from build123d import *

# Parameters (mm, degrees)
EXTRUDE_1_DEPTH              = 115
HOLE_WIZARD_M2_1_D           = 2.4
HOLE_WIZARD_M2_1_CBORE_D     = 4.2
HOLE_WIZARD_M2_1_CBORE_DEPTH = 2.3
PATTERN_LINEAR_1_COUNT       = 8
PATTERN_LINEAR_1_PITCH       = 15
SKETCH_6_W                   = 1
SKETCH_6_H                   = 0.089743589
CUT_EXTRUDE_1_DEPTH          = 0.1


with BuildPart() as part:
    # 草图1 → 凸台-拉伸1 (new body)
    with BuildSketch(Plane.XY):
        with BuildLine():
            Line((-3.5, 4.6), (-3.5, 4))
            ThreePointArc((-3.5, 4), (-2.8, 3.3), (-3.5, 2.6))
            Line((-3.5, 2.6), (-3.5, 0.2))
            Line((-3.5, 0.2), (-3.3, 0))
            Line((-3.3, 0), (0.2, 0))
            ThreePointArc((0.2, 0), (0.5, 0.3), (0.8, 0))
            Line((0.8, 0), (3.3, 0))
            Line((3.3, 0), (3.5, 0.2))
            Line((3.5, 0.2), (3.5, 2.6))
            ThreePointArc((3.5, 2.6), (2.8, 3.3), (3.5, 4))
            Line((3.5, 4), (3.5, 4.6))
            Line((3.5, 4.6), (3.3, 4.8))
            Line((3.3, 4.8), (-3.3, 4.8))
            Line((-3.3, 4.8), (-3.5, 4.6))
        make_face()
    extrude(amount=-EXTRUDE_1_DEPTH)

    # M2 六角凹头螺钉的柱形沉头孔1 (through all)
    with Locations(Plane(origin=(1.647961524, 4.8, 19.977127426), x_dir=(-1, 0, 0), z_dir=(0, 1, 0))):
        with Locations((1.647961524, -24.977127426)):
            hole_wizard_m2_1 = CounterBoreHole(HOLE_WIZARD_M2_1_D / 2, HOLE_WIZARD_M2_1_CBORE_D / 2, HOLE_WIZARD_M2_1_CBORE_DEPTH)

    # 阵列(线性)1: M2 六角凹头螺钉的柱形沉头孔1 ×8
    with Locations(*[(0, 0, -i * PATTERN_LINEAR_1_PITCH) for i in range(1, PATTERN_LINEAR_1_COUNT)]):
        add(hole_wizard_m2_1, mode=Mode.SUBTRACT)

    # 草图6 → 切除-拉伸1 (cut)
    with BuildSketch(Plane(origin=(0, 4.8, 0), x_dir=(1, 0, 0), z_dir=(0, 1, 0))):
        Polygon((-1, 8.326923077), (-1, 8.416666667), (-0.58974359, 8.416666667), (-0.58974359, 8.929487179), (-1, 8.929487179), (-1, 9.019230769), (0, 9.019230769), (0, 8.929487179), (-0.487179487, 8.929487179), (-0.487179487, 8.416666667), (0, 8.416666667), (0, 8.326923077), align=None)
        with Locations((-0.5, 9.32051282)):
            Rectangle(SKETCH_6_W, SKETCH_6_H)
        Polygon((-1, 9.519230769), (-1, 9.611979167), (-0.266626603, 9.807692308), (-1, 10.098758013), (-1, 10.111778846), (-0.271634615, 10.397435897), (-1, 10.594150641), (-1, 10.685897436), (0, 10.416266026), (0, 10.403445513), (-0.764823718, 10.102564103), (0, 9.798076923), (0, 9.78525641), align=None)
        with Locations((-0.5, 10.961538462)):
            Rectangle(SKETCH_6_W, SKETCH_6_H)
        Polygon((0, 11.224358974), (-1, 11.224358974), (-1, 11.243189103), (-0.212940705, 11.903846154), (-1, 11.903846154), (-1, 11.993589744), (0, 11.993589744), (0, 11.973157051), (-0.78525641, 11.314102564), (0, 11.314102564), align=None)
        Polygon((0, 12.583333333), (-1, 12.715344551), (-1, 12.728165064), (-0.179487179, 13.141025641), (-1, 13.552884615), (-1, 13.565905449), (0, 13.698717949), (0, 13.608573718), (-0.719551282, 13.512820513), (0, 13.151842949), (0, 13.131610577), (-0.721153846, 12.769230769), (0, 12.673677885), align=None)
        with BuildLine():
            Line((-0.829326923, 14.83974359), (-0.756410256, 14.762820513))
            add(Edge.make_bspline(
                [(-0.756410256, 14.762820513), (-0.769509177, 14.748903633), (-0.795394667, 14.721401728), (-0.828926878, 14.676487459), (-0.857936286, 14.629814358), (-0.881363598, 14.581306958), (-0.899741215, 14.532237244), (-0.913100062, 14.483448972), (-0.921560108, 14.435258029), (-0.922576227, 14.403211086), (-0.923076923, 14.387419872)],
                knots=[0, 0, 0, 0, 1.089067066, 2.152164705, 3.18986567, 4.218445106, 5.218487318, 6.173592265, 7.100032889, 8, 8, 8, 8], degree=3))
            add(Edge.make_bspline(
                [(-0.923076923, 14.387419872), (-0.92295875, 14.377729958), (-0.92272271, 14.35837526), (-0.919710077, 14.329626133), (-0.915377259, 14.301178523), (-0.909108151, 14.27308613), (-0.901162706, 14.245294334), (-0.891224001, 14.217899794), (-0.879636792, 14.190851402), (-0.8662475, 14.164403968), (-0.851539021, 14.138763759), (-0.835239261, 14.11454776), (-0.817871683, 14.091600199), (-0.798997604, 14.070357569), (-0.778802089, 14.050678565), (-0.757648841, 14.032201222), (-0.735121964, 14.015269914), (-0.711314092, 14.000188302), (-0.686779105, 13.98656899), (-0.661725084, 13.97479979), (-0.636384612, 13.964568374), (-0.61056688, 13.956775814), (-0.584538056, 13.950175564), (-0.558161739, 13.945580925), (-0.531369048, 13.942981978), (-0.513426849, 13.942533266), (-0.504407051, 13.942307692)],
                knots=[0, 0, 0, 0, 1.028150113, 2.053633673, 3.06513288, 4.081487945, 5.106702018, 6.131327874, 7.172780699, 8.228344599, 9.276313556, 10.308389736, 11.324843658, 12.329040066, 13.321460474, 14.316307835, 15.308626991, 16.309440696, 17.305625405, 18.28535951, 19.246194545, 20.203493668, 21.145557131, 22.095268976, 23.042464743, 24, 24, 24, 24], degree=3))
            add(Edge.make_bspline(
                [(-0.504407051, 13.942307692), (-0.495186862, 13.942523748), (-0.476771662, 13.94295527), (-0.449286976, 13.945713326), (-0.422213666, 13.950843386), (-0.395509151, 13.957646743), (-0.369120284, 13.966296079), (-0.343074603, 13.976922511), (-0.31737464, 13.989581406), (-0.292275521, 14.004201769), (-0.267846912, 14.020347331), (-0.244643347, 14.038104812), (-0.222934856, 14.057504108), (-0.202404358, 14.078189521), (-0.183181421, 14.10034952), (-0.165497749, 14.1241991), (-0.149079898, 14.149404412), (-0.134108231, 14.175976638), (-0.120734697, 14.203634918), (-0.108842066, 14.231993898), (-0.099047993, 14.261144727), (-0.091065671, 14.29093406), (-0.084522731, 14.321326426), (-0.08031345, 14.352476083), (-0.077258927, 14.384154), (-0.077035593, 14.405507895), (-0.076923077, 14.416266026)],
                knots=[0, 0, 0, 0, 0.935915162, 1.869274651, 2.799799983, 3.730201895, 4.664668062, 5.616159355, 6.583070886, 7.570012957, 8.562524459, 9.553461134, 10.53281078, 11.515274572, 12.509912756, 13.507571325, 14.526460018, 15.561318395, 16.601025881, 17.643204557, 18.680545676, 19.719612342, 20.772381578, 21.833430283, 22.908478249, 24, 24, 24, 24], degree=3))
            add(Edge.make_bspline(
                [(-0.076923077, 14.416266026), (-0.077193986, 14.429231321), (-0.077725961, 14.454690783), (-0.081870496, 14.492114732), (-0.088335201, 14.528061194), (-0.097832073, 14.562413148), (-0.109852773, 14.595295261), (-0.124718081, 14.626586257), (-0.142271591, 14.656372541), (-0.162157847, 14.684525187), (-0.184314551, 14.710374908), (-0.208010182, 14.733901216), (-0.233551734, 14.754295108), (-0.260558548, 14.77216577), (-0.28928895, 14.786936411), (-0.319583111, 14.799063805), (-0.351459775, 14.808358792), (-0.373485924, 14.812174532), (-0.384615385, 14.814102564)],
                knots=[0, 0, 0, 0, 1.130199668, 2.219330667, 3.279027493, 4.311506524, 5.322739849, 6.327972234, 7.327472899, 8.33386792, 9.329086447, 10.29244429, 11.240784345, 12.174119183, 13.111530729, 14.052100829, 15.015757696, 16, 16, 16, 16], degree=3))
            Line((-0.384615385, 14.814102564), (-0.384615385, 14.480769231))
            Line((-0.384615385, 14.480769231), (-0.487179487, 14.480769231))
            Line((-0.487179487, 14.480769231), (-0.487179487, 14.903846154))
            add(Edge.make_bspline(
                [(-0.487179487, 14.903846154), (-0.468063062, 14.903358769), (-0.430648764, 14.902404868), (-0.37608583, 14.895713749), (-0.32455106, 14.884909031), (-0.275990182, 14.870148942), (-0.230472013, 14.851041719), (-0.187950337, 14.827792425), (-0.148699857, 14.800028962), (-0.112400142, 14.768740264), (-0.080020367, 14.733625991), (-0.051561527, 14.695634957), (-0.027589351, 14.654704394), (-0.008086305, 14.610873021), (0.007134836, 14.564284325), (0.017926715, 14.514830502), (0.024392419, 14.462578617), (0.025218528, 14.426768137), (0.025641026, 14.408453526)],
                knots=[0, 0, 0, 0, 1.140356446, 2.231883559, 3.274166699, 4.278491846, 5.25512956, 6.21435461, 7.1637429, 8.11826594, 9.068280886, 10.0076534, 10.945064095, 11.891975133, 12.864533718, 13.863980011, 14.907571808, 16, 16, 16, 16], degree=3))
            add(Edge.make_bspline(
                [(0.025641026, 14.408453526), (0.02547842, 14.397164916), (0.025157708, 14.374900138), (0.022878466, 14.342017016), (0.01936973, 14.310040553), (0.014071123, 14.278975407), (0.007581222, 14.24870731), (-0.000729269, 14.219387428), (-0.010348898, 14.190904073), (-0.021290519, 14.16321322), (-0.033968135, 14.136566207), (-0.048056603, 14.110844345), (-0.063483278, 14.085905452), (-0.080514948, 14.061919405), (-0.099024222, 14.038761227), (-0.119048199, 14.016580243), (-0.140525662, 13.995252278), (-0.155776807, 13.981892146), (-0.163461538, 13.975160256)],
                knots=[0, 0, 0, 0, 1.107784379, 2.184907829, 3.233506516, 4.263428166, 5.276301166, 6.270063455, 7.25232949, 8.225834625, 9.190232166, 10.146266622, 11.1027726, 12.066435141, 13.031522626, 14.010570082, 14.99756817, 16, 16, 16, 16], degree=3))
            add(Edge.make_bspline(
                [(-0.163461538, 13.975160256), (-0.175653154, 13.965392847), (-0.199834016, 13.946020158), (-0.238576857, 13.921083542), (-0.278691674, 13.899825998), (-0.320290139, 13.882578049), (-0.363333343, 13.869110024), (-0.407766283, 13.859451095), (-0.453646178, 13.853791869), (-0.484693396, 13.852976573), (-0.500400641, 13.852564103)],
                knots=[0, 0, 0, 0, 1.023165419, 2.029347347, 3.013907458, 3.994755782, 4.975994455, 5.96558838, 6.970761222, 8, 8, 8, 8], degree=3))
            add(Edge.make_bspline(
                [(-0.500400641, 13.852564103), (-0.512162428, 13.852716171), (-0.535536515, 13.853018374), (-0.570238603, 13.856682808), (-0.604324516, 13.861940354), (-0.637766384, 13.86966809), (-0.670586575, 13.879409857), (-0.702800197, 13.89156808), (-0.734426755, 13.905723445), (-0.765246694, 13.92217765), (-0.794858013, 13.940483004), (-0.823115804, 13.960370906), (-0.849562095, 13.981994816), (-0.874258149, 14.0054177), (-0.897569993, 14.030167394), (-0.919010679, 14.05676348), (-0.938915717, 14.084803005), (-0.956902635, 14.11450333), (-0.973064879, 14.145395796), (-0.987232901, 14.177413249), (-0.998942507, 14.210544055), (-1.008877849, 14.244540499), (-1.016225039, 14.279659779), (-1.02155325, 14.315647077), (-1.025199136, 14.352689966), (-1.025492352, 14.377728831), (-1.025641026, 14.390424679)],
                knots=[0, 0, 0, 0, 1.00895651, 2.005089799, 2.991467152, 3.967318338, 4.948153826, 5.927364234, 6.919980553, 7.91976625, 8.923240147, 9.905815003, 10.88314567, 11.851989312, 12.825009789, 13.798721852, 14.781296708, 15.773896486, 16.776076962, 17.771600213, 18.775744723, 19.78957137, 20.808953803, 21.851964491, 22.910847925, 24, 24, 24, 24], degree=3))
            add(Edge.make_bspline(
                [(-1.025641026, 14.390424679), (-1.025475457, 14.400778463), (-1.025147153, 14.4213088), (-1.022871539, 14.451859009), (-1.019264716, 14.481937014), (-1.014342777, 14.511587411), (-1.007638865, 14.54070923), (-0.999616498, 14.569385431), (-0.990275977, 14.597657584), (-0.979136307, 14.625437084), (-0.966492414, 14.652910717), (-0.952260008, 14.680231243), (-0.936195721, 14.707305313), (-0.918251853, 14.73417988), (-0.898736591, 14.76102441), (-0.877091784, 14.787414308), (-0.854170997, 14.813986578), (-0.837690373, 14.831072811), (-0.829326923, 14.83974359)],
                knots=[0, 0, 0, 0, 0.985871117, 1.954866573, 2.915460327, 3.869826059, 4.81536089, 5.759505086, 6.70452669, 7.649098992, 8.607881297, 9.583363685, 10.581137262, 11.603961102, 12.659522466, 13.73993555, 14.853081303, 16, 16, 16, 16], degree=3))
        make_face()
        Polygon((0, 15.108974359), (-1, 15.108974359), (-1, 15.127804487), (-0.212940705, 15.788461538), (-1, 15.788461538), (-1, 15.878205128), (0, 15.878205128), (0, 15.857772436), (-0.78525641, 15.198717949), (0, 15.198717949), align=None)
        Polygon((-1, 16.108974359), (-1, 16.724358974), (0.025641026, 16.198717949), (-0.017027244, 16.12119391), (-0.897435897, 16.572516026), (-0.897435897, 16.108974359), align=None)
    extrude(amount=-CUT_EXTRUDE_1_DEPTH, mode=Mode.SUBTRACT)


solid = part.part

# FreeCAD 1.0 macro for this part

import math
import FreeCAD as App
import Part
import Sketcher
from FreeCAD import Vector
Q = App.Units.Quantity


def add_polygon(sketch, points):
    """Adds a closed chain of lines whose ends are joined by coincident constraints."""
    first, n = sketch.GeometryCount, len(points)
    for a, b in zip(points, points[1:] + points[:1]):
        sketch.addGeometry(Part.LineSegment(App.Vector(*a, 0), App.Vector(*b, 0)), False)
    for i in range(n):
        sketch.addConstraint(Sketcher.Constraint("Coincident", first + i, 2, first + (i + 1) % n, 1))

doc = App.newDocument("Part")
body = doc.addObject("PartDesign::Body", "Body")

# Sketch on XY plane
sketch1 = body.newObject("Sketcher::SketchObject", "Sketch")
sketch1.AttachmentSupport = (doc.getObject("XY_Plane"), [""])
sketch1.MapMode = "FlatFace"
sketch1.addGeometry([
    Part.LineSegment(Vector(-3.5, 4.6, 0), Vector(-3.5, 4, 0)),  # 0
    Part.ArcOfCircle(Part.Circle(Vector(-3.5, 3.3, 0), Vector(0, 0, 1), 0.7), math.radians(-90), math.radians(90)),  # 1
    Part.LineSegment(Vector(-3.5, 2.6, 0), Vector(-3.5, 0.2, 0)),  # 2
    Part.LineSegment(Vector(-3.5, 0.2, 0), Vector(-3.3, 0, 0)),  # 3
    Part.LineSegment(Vector(-3.3, 0, 0), Vector(0.2, 0, 0)),  # 4
    Part.ArcOfCircle(Part.Circle(Vector(0.5, 0, 0), Vector(0, 0, 1), 0.3), math.radians(0), math.radians(180)),  # 5
    Part.LineSegment(Vector(0.8, 0, 0), Vector(3.3, 0, 0)),  # 6
    Part.LineSegment(Vector(3.3, 0, 0), Vector(3.5, 0.2, 0)),  # 7
    Part.LineSegment(Vector(3.5, 0.2, 0), Vector(3.5, 2.6, 0)),  # 8
    Part.ArcOfCircle(Part.Circle(Vector(3.5, 3.3, 0), Vector(0, 0, 1), 0.7), math.radians(90), math.radians(270)),  # 9
    Part.LineSegment(Vector(3.5, 4, 0), Vector(3.5, 4.6, 0)),  # 10
    Part.LineSegment(Vector(3.5, 4.6, 0), Vector(3.3, 4.8, 0)),  # 11
    Part.LineSegment(Vector(3.3, 4.8, 0), Vector(-3.3, 4.8, 0)),  # 12
    Part.LineSegment(Vector(-3.3, 4.8, 0), Vector(-3.5, 4.6, 0)),  # 13
], False)
sketch1.addConstraint([
    Sketcher.Constraint("Coincident", 0, 2, 1, 2),
    Sketcher.Constraint("Coincident", 1, 1, 2, 1),
    Sketcher.Constraint("Coincident", 2, 2, 3, 1),
    Sketcher.Constraint("Coincident", 3, 2, 4, 1),
    Sketcher.Constraint("Coincident", 4, 2, 5, 2),
    Sketcher.Constraint("Coincident", 5, 1, 6, 1),
    Sketcher.Constraint("Coincident", 6, 2, 7, 1),
    Sketcher.Constraint("Coincident", 7, 2, 8, 1),
    Sketcher.Constraint("Coincident", 8, 2, 9, 2),
    Sketcher.Constraint("Coincident", 9, 1, 10, 1),
    Sketcher.Constraint("Coincident", 10, 2, 11, 1),
    Sketcher.Constraint("Coincident", 11, 2, 12, 1),
    Sketcher.Constraint("Coincident", 12, 2, 13, 1),
    Sketcher.Constraint("Coincident", 13, 2, 0, 1),
    Sketcher.Constraint("Vertical", 0),
    Sketcher.Constraint("Vertical", 2),
    Sketcher.Constraint("Horizontal", 4),
    Sketcher.Constraint("Horizontal", 6),
    Sketcher.Constraint("Vertical", 8),
    Sketcher.Constraint("Vertical", 10),
    Sketcher.Constraint("Horizontal", 12),
    Sketcher.Constraint("Equal", 1, 9),
    Sketcher.Constraint("Symmetric", 3, 2, 6, 2, -1, 1),
    Sketcher.Constraint("Symmetric", 1, 3, 9, 3, -2),
    Sketcher.Constraint("Symmetric", 2, 2, 7, 2, -2),
    Sketcher.Constraint("Symmetric", 10, 2, 13, 2, -2),
    Sketcher.Constraint("PointOnObject", 5, 3, -1),
    Sketcher.Constraint("PointOnObject", 3, 2, -1),
    Sketcher.Constraint("Perpendicular", 3, 7),
    Sketcher.Constraint("Perpendicular", 7, 11),
    Sketcher.Constraint("Perpendicular", 11, 13),
    Sketcher.Constraint("Vertical", 1, 3, 0, 2),
    Sketcher.Constraint("Vertical", 0, 2, 1, 1),
    Sketcher.Constraint("Vertical", 6, 2, 11, 2),
    Sketcher.Constraint("Radius", 1, Q("0.7 mm")),
    Sketcher.Constraint("Radius", 5, Q("0.3 mm")),
    Sketcher.Constraint("DistanceX", 4, 1, 4, 2, Q("3.5 mm")),
    Sketcher.Constraint("DistanceX", 6, 1, 6, 2, Q("2.5 mm")),
    Sketcher.Constraint("DistanceY", 0, 2, 0, 1, Q("0.6 mm")),
    Sketcher.Constraint("DistanceY", 2, 2, 2, 1, Q("2.4 mm")),
    Sketcher.Constraint("DistanceY", -1, 1, 0, 2, Q("4 mm")),
])
pad1 = body.newObject("PartDesign::Pad", "Pad")
pad1.Profile = sketch1
pad1.Length = 115
pad1.Reversed = True

# Sketch on XZ plane
sketch2 = body.newObject("Sketcher::SketchObject", "Sketch001")
sketch2.AttachmentSupport = (doc.getObject("XZ_Plane"), [""])
sketch2.MapMode = "FlatFace"
sketch2.AttachmentOffset = App.Placement(Vector(0, 0, -4.8), App.Rotation())
sketch2.addGeometry(Part.Circle(Vector(0, -5, 0), Vector(0, 0, 1), 1.2), False)
sketch2.addConstraint([
    Sketcher.Constraint("PointOnObject", 0, 3, -2),
    Sketcher.Constraint("Diameter", 0, Q("2.4 mm")),
    Sketcher.Constraint("DistanceY", 0, 3, -1, 1, Q("5 mm")),
])
doc.recompute()
hole = body.newObject("PartDesign::Hole", "Hole")
hole.Profile = sketch2
hole.ThreadType = "None"
hole.Diameter = 2.4
hole.DepthType = "ThroughAll"
hole.HoleCutType = "Counterbore"
hole.HoleCutDiameter = 4.2
hole.HoleCutDepth = 2.3
hole.Reversed = True
doc.recompute()

linearpattern = body.newObject("PartDesign::LinearPattern", "LinearPattern")
linearpattern.Originals = [hole]
linearpattern.Direction = (doc.getObject("Z_Axis"), [""])
linearpattern.Mode = "offset"
linearpattern.Offset = 15
linearpattern.Occurrences = 8
linearpattern.Reversed = True
body.Tip = linearpattern

# Sketch on XZ plane
sketch3 = body.newObject("Sketcher::SketchObject", "Sketch002")
sketch3.AttachmentSupport = (doc.getObject("XZ_Plane"), [""])
sketch3.MapMode = "FlatFace"
sketch3.AttachmentOffset = App.Placement(Vector(0, 0, -4.8), App.Rotation())
add_polygon(sketch3, [(-1, -8.416667), (-1, -8.326923), (0, -8.326923), (0, -8.416667), (-0.487179, -8.416667), (-0.487179, -8.929487), (0, -8.929487), (0, -9.019231), (-1, -9.019231), (-1, -8.929487), (-0.589744, -8.929487), (-0.589744, -8.416667)])  # lines 0-11
add_polygon(sketch3, [(-1, -9.365385), (-1, -9.275641), (0, -9.275641), (0, -9.365385)])  # lines 12-15
add_polygon(sketch3, [(-1, -9.611979), (-1, -9.519231), (0, -9.785256), (0, -9.798077), (-0.764824, -10.102564), (0, -10.403446), (0, -10.416266), (-1, -10.685897), (-1, -10.594151), (-0.271635, -10.397436), (-1, -10.111779), (-1, -10.098758), (-0.266627, -9.807692)])  # lines 16-28
add_polygon(sketch3, [(-1, -11.00641), (-1, -10.916667), (0, -10.916667), (0, -11.00641)])  # lines 29-32
add_polygon(sketch3, [(-1, -11.224359), (0, -11.224359), (0, -11.314103), (-0.785256, -11.314103), (0, -11.973157), (0, -11.99359), (-1, -11.99359), (-1, -11.903846), (-0.212941, -11.903846), (-1, -11.243189)])  # lines 33-42
add_polygon(sketch3, [(-1, -12.715345), (0, -12.583333), (0, -12.673678), (-0.721154, -12.769231), (0, -13.131611), (0, -13.151843), (-0.719551, -13.512821), (0, -13.608574), (0, -13.698718), (-1, -13.565905), (-1, -13.552885), (-0.179487, -13.141026), (-1, -12.728165)])  # lines 43-55
sketch3.addGeometry(Part.LineSegment(Vector(-0.75641, -14.762821, 0), Vector(-0.829327, -14.839744, 0)), False)  # 56
sketch3.addGeometry(Part.BSplineCurve([Vector(-1.025641, -14.390425, 0), Vector(-1.025475, -14.400778, 0), Vector(-1.025147, -14.421309, 0), Vector(-1.022872, -14.451859, 0), Vector(-1.019265, -14.481937, 0), Vector(-1.014343, -14.511587, 0), Vector(-1.007639, -14.540709, 0), Vector(-0.999616, -14.569385, 0), Vector(-0.990276, -14.597658, 0), Vector(-0.979136, -14.625437, 0), Vector(-0.966492, -14.652911, 0), Vector(-0.95226, -14.680231, 0), Vector(-0.936196, -14.707305, 0), Vector(-0.918252, -14.73418, 0), Vector(-0.898737, -14.761024, 0), Vector(-0.877092, -14.787414, 0), Vector(-0.854171, -14.813987, 0), Vector(-0.83769, -14.831073, 0), Vector(-0.829327, -14.839744, 0)], [4, 1, 1, 1, 1, 1, 1, 1, 1, 1, 1, 1, 1, 1, 1, 1, 4], [0, 0.985871117, 1.954866573, 2.915460327, 3.869826059, 4.81536089, 5.759505086, 6.70452669, 7.649098992, 8.607881297, 9.583363685, 10.581137262, 11.603961102, 12.659522466, 13.73993555, 14.853081303, 16], False, 3, [1, 1, 1, 1, 1, 1, 1, 1, 1, 1, 1, 1, 1, 1, 1, 1, 1, 1, 1], False), False)  # 57
sketch3.addGeometry(Part.BSplineCurve([Vector(-0.500401, -13.852564, 0), Vector(-0.512162, -13.852716, 0), Vector(-0.535537, -13.853018, 0), Vector(-0.570239, -13.856683, 0), Vector(-0.604325, -13.86194, 0), Vector(-0.637766, -13.869668, 0), Vector(-0.670587, -13.87941, 0), Vector(-0.7028, -13.891568, 0), Vector(-0.734427, -13.905723, 0), Vector(-0.765247, -13.922178, 0), Vector(-0.794858, -13.940483, 0), Vector(-0.823116, -13.960371, 0), Vector(-0.849562, -13.981995, 0), Vector(-0.874258, -14.005418, 0), Vector(-0.89757, -14.030167, 0), Vector(-0.919011, -14.056763, 0), Vector(-0.938916, -14.084803, 0), Vector(-0.956903, -14.114503, 0), Vector(-0.973065, -14.145396, 0), Vector(-0.987233, -14.177413, 0), Vector(-0.998943, -14.210544, 0), Vector(-1.008878, -14.24454, 0), Vector(-1.016225, -14.27966, 0), Vector(-1.021553, -14.315647, 0), Vector(-1.025199, -14.35269, 0), Vector(-1.025492, -14.377729, 0), Vector(-1.025641, -14.390425, 0)], [4, 1, 1, 1, 1, 1, 1, 1, 1, 1, 1, 1, 1, 1, 1, 1, 1, 1, 1, 1, 1, 1, 1, 1, 4], [0, 1.00895651, 2.005089799, 2.991467152, 3.967318338, 4.948153826, 5.927364234, 6.919980553, 7.91976625, 8.923240147, 9.905815003, 10.88314567, 11.851989312, 12.825009789, 13.798721852, 14.781296708, 15.773896486, 16.776076962, 17.771600213, 18.775744723, 19.78957137, 20.808953803, 21.851964491, 22.910847925, 24], False, 3, [1, 1, 1, 1, 1, 1, 1, 1, 1, 1, 1, 1, 1, 1, 1, 1, 1, 1, 1, 1, 1, 1, 1, 1, 1, 1, 1], False), False)  # 58
sketch3.addGeometry(Part.BSplineCurve([Vector(-0.163462, -13.97516, 0), Vector(-0.175653, -13.965393, 0), Vector(-0.199834, -13.94602, 0), Vector(-0.238577, -13.921084, 0), Vector(-0.278692, -13.899826, 0), Vector(-0.32029, -13.882578, 0), Vector(-0.363333, -13.86911, 0), Vector(-0.407766, -13.859451, 0), Vector(-0.453646, -13.853792, 0), Vector(-0.484693, -13.852977, 0), Vector(-0.500401, -13.852564, 0)], [4, 1, 1, 1, 1, 1, 1, 1, 4], [0, 1.023165419, 2.029347347, 3.013907458, 3.994755782, 4.975994455, 5.96558838, 6.970761222, 8], False, 3, [1, 1, 1, 1, 1, 1, 1, 1, 1, 1, 1], False), False)  # 59
sketch3.addGeometry(Part.BSplineCurve([Vector(0.025641, -14.408454, 0), Vector(0.025478, -14.397165, 0), Vector(0.025158, -14.3749, 0), Vector(0.022878, -14.342017, 0), Vector(0.01937, -14.310041, 0), Vector(0.014071, -14.278975, 0), Vector(0.007581, -14.248707, 0), Vector(-0.000729, -14.219387, 0), Vector(-0.010349, -14.190904, 0), Vector(-0.021291, -14.163213, 0), Vector(-0.033968, -14.136566, 0), Vector(-0.048057, -14.110844, 0), Vector(-0.063483, -14.085905, 0), Vector(-0.080515, -14.061919, 0), Vector(-0.099024, -14.038761, 0), Vector(-0.119048, -14.01658, 0), Vector(-0.140526, -13.995252, 0), Vector(-0.155777, -13.981892, 0), Vector(-0.163462, -13.97516, 0)], [4, 1, 1, 1, 1, 1, 1, 1, 1, 1, 1, 1, 1, 1, 1, 1, 4], [0, 1.107784379, 2.184907829, 3.233506516, 4.263428166, 5.276301166, 6.270063455, 7.25232949, 8.225834625, 9.190232166, 10.146266622, 11.1027726, 12.066435141, 13.031522626, 14.010570082, 14.99756817, 16], False, 3, [1, 1, 1, 1, 1, 1, 1, 1, 1, 1, 1, 1, 1, 1, 1, 1, 1, 1, 1], False), False)  # 60
sketch3.addGeometry(Part.BSplineCurve([Vector(-0.487179, -14.903846, 0), Vector(-0.468063, -14.903359, 0), Vector(-0.430649, -14.902405, 0), Vector(-0.376086, -14.895714, 0), Vector(-0.324551, -14.884909, 0), Vector(-0.27599, -14.870149, 0), Vector(-0.230472, -14.851042, 0), Vector(-0.18795, -14.827792, 0), Vector(-0.1487, -14.800029, 0), Vector(-0.1124, -14.76874, 0), Vector(-0.08002, -14.733626, 0), Vector(-0.051562, -14.695635, 0), Vector(-0.027589, -14.654704, 0), Vector(-0.008086, -14.610873, 0), Vector(0.007135, -14.564284, 0), Vector(0.017927, -14.514831, 0), Vector(0.024392, -14.462579, 0), Vector(0.025219, -14.426768, 0), Vector(0.025641, -14.408454, 0)], [4, 1, 1, 1, 1, 1, 1, 1, 1, 1, 1, 1, 1, 1, 1, 1, 4], [0, 1.140356446, 2.231883559, 3.274166699, 4.278491846, 5.25512956, 6.21435461, 7.1637429, 8.11826594, 9.068280886, 10.0076534, 10.945064095, 11.891975133, 12.864533718, 13.863980011, 14.907571808, 16], False, 3, [1, 1, 1, 1, 1, 1, 1, 1, 1, 1, 1, 1, 1, 1, 1, 1, 1, 1, 1], False), False)  # 61
sketch3.addGeometry(Part.LineSegment(Vector(-0.487179, -14.903846, 0), Vector(-0.487179, -14.480769, 0)), False)  # 62
sketch3.addGeometry(Part.LineSegment(Vector(-0.487179, -14.480769, 0), Vector(-0.384615, -14.480769, 0)), False)  # 63
sketch3.addGeometry(Part.LineSegment(Vector(-0.384615, -14.480769, 0), Vector(-0.384615, -14.814103, 0)), False)  # 64
sketch3.addGeometry(Part.BSplineCurve([Vector(-0.076923, -14.416266, 0), Vector(-0.077194, -14.429231, 0), Vector(-0.077726, -14.454691, 0), Vector(-0.08187, -14.492115, 0), Vector(-0.088335, -14.528061, 0), Vector(-0.097832, -14.562413, 0), Vector(-0.109853, -14.595295, 0), Vector(-0.124718, -14.626586, 0), Vector(-0.142272, -14.656373, 0), Vector(-0.162158, -14.684525, 0), Vector(-0.184315, -14.710375, 0), Vector(-0.20801, -14.733901, 0), Vector(-0.233552, -14.754295, 0), Vector(-0.260559, -14.772166, 0), Vector(-0.289289, -14.786936, 0), Vector(-0.319583, -14.799064, 0), Vector(-0.35146, -14.808359, 0), Vector(-0.373486, -14.812175, 0), Vector(-0.384615, -14.814103, 0)], [4, 1, 1, 1, 1, 1, 1, 1, 1, 1, 1, 1, 1, 1, 1, 1, 4], [0, 1.130199668, 2.219330667, 3.279027493, 4.311506524, 5.322739849, 6.327972234, 7.327472899, 8.33386792, 9.329086447, 10.29244429, 11.240784345, 12.174119183, 13.111530729, 14.052100829, 15.015757696, 16], False, 3, [1, 1, 1, 1, 1, 1, 1, 1, 1, 1, 1, 1, 1, 1, 1, 1, 1, 1, 1], False), False)  # 65
sketch3.addGeometry(Part.BSplineCurve([Vector(-0.504407, -13.942308, 0), Vector(-0.495187, -13.942524, 0), Vector(-0.476772, -13.942955, 0), Vector(-0.449287, -13.945713, 0), Vector(-0.422214, -13.950843, 0), Vector(-0.395509, -13.957647, 0), Vector(-0.36912, -13.966296, 0), Vector(-0.343075, -13.976923, 0), Vector(-0.317375, -13.989581, 0), Vector(-0.292276, -14.004202, 0), Vector(-0.267847, -14.020347, 0), Vector(-0.244643, -14.038105, 0), Vector(-0.222935, -14.057504, 0), Vector(-0.202404, -14.07819, 0), Vector(-0.183181, -14.10035, 0), Vector(-0.165498, -14.124199, 0), Vector(-0.14908, -14.149404, 0), Vector(-0.134108, -14.175977, 0), Vector(-0.120735, -14.203635, 0), Vector(-0.108842, -14.231994, 0), Vector(-0.099048, -14.261145, 0), Vector(-0.091066, -14.290934, 0), Vector(-0.084523, -14.321326, 0), Vector(-0.080313, -14.352476, 0), Vector(-0.077259, -14.384154, 0), Vector(-0.077036, -14.405508, 0), Vector(-0.076923, -14.416266, 0)], [4, 1, 1, 1, 1, 1, 1, 1, 1, 1, 1, 1, 1, 1, 1, 1, 1, 1, 1, 1, 1, 1, 1, 1, 4], [0, 0.935915162, 1.869274651, 2.799799983, 3.730201895, 4.664668062, 5.616159355, 6.583070886, 7.570012957, 8.562524459, 9.553461134, 10.53281078, 11.515274572, 12.509912756, 13.507571325, 14.526460018, 15.561318395, 16.601025881, 17.643204557, 18.680545676, 19.719612342, 20.772381578, 21.833430283, 22.908478249, 24], False, 3, [1, 1, 1, 1, 1, 1, 1, 1, 1, 1, 1, 1, 1, 1, 1, 1, 1, 1, 1, 1, 1, 1, 1, 1, 1, 1, 1], False), False)  # 66
sketch3.addGeometry(Part.BSplineCurve([Vector(-0.923077, -14.38742, 0), Vector(-0.922959, -14.37773, 0), Vector(-0.922723, -14.358375, 0), Vector(-0.91971, -14.329626, 0), Vector(-0.915377, -14.301179, 0), Vector(-0.909108, -14.273086, 0), Vector(-0.901163, -14.245294, 0), Vector(-0.891224, -14.2179, 0), Vector(-0.879637, -14.190851, 0), Vector(-0.866247, -14.164404, 0), Vector(-0.851539, -14.138764, 0), Vector(-0.835239, -14.114548, 0), Vector(-0.817872, -14.0916, 0), Vector(-0.798998, -14.070358, 0), Vector(-0.778802, -14.050679, 0), Vector(-0.757649, -14.032201, 0), Vector(-0.735122, -14.01527, 0), Vector(-0.711314, -14.000188, 0), Vector(-0.686779, -13.986569, 0), Vector(-0.661725, -13.9748, 0), Vector(-0.636385, -13.964568, 0), Vector(-0.610567, -13.956776, 0), Vector(-0.584538, -13.950176, 0), Vector(-0.558162, -13.945581, 0), Vector(-0.531369, -13.942982, 0), Vector(-0.513427, -13.942533, 0), Vector(-0.504407, -13.942308, 0)], [4, 1, 1, 1, 1, 1, 1, 1, 1, 1, 1, 1, 1, 1, 1, 1, 1, 1, 1, 1, 1, 1, 1, 1, 4], [0, 1.028150113, 2.053633673, 3.06513288, 4.081487945, 5.106702018, 6.131327874, 7.172780699, 8.228344599, 9.276313556, 10.308389736, 11.324843658, 12.329040066, 13.321460474, 14.316307835, 15.308626991, 16.309440696, 17.305625405, 18.28535951, 19.246194545, 20.203493668, 21.145557131, 22.095268976, 23.042464743, 24], False, 3, [1, 1, 1, 1, 1, 1, 1, 1, 1, 1, 1, 1, 1, 1, 1, 1, 1, 1, 1, 1, 1, 1, 1, 1, 1, 1, 1], False), False)  # 67
sketch3.addGeometry(Part.BSplineCurve([Vector(-0.75641, -14.762821, 0), Vector(-0.769509, -14.748904, 0), Vector(-0.795395, -14.721402, 0), Vector(-0.828927, -14.676487, 0), Vector(-0.857936, -14.629814, 0), Vector(-0.881364, -14.581307, 0), Vector(-0.899741, -14.532237, 0), Vector(-0.9131, -14.483449, 0), Vector(-0.92156, -14.435258, 0), Vector(-0.922576, -14.403211, 0), Vector(-0.923077, -14.38742, 0)], [4, 1, 1, 1, 1, 1, 1, 1, 4], [0, 1.089067066, 2.152164705, 3.18986567, 4.218445106, 5.218487318, 6.173592265, 7.100032889, 8], False, 3, [1, 1, 1, 1, 1, 1, 1, 1, 1, 1, 1], False), False)  # 68
add_polygon(sketch3, [(-1, -15.108974), (0, -15.108974), (0, -15.198718), (-0.785256, -15.198718), (0, -15.857772), (0, -15.878205), (-1, -15.878205), (-1, -15.788462), (-0.212941, -15.788462), (-1, -15.127804)])  # lines 69-78
add_polygon(sketch3, [(-1, -16.724359), (-1, -16.108974), (-0.897436, -16.108974), (-0.897436, -16.572516), (-0.017027, -16.121194), (0.025641, -16.198718)])  # lines 79-84
sketch3.addConstraint([
    Sketcher.Constraint("Block", 57),
    Sketcher.Constraint("Block", 58),
    Sketcher.Constraint("Block", 59),
    Sketcher.Constraint("Block", 60),
    Sketcher.Constraint("Block", 61),
    Sketcher.Constraint("Block", 65),
    Sketcher.Constraint("Block", 66),
    Sketcher.Constraint("Block", 67),
    Sketcher.Constraint("Block", 68),
    Sketcher.Constraint("Coincident", 56, 2, 57, 2),
    Sketcher.Constraint("Coincident", 61, 1, 62, 1),
    Sketcher.Constraint("Coincident", 62, 2, 63, 1),
    Sketcher.Constraint("Coincident", 63, 2, 64, 1),
    Sketcher.Constraint("Coincident", 64, 2, 65, 2),
    Sketcher.Constraint("Coincident", 68, 1, 56, 1),
    Sketcher.Constraint("Vertical", 0),
    Sketcher.Constraint("Horizontal", 1),
    Sketcher.Constraint("Vertical", 2),
    Sketcher.Constraint("Horizontal", 3),
    Sketcher.Constraint("Vertical", 4),
    Sketcher.Constraint("Horizontal", 5),
    Sketcher.Constraint("Vertical", 6),
    Sketcher.Constraint("Horizontal", 7),
    Sketcher.Constraint("Vertical", 8),
    Sketcher.Constraint("Horizontal", 9),
    Sketcher.Constraint("Vertical", 10),
    Sketcher.Constraint("Horizontal", 11),
    Sketcher.Constraint("Vertical", 12),
    Sketcher.Constraint("Horizontal", 13),
    Sketcher.Constraint("Vertical", 14),
    Sketcher.Constraint("Horizontal", 15),
    Sketcher.Constraint("Vertical", 16),
    Sketcher.Constraint("Vertical", 18),
    Sketcher.Constraint("Vertical", 21),
    Sketcher.Constraint("Vertical", 23),
    Sketcher.Constraint("Vertical", 26),
    Sketcher.Constraint("Vertical", 29),
    Sketcher.Constraint("Horizontal", 30),
    Sketcher.Constraint("Vertical", 31),
    Sketcher.Constraint("Horizontal", 32),
    Sketcher.Constraint("Horizontal", 33),
    Sketcher.Constraint("Vertical", 34),
    Sketcher.Constraint("Horizontal", 35),
    Sketcher.Constraint("Vertical", 37),
    Sketcher.Constraint("Horizontal", 38),
    Sketcher.Constraint("Vertical", 39),
    Sketcher.Constraint("Horizontal", 40),
    Sketcher.Constraint("Vertical", 42),
    Sketcher.Constraint("Vertical", 44),
    Sketcher.Constraint("Vertical", 47),
    Sketcher.Constraint("Vertical", 50),
    Sketcher.Constraint("Vertical", 52),
    Sketcher.Constraint("Vertical", 55),
    Sketcher.Constraint("Vertical", 62),
    Sketcher.Constraint("Horizontal", 63),
    Sketcher.Constraint("Vertical", 64),
    Sketcher.Constraint("Horizontal", 69),
    Sketcher.Constraint("Vertical", 70),
    Sketcher.Constraint("Horizontal", 71),
    Sketcher.Constraint("Vertical", 73),
    Sketcher.Constraint("Horizontal", 74),
    Sketcher.Constraint("Vertical", 75),
    Sketcher.Constraint("Horizontal", 76),
    Sketcher.Constraint("Vertical", 78),
    Sketcher.Constraint("Vertical", 79),
    Sketcher.Constraint("Horizontal", 80),
    Sketcher.Constraint("Vertical", 81),
    Sketcher.Constraint("PointOnObject", 1, 2, -2),
    Sketcher.Constraint("PointOnObject", 5, 2, -2),
    Sketcher.Constraint("PointOnObject", 13, 2, -2),
    Sketcher.Constraint("PointOnObject", 17, 2, -2),
    Sketcher.Constraint("PointOnObject", 20, 2, -2),
    Sketcher.Constraint("PointOnObject", 30, 2, -2),
    Sketcher.Constraint("PointOnObject", 33, 2, -2),
    Sketcher.Constraint("PointOnObject", 36, 2, -2),
    Sketcher.Constraint("PointOnObject", 43, 2, -2),
    Sketcher.Constraint("PointOnObject", 46, 2, -2),
    Sketcher.Constraint("PointOnObject", 49, 2, -2),
    Sketcher.Constraint("PointOnObject", 69, 2, -2),
    Sketcher.Constraint("PointOnObject", 72, 2, -2),
    Sketcher.Constraint("Parallel", 36, 72),
    Sketcher.Constraint("Parallel", 41, 77),
    Sketcher.Constraint("Horizontal", 5, 2, 8, 2),
    Sketcher.Constraint("Horizontal", 3, 2, 10, 2),
    Sketcher.Constraint("Vertical", 0, 2, 7, 2),
    Sketcher.Constraint("Vertical", 11, 2, 12, 2),
    Sketcher.Constraint("Vertical", 15, 2, 16, 2),
    Sketcher.Constraint("Vertical", 16, 2, 22, 2),
    Sketcher.Constraint("Vertical", 23, 2, 25, 2),
    Sketcher.Constraint("Vertical", 28, 2, 29, 2),
    Sketcher.Constraint("Vertical", 32, 2, 38, 2),
    Sketcher.Constraint("Vertical", 39, 2, 41, 2),
    Sketcher.Constraint("Vertical", 42, 2, 51, 2),
    Sketcher.Constraint("Vertical", 52, 2, 54, 2),
    Sketcher.Constraint("Vertical", 4, 2, 62, 2),
    Sketcher.Constraint("Vertical", 35, 2, 71, 2),
    Sketcher.Constraint("Vertical", 55, 2, 74, 2),
    Sketcher.Constraint("Vertical", 40, 2, 76, 2),
    Sketcher.Constraint("Vertical", 75, 2, 77, 2),
    Sketcher.Constraint("Vertical", 78, 2, 79, 2),
    Sketcher.Constraint("Equal", 63, 80),
    Sketcher.Constraint("Equal", 2, 6),
    Sketcher.Constraint("Equal", 8, 12),
    Sketcher.Constraint("Equal", 18, 21),
    Sketcher.Constraint("Equal", 14, 29),
    Sketcher.Constraint("Equal", 31, 34),
    Sketcher.Constraint("Equal", 34, 39),
    Sketcher.Constraint("Equal", 26, 52),
    Sketcher.Constraint("Equal", 21, 55),
    Sketcher.Constraint("Equal", 39, 70),
    Sketcher.Constraint("Equal", 37, 73),
    Sketcher.Constraint("Equal", 70, 75),
    Sketcher.Constraint("DistanceX", 1, 1, 1, 2, Q("1 mm")),
    Sketcher.Constraint("Angle", 49, Q("-7.580015 deg")),
    Sketcher.Constraint("DistanceX", 40, 1, 40, 2, Q("0.787059 mm")),
    Sketcher.Constraint("DistanceY", 4, 2, 4, 1, Q("0.512821 mm")),
    Sketcher.Constraint("DistanceY", 16, 1, 16, 2, Q("0.092748 mm")),
    Sketcher.Constraint("DistanceY", 18, 2, 18, 1, Q("0.012821 mm")),
    Sketcher.Constraint("DistanceY", 26, 1, 26, 2, Q("0.013021 mm")),
    Sketcher.Constraint("DistanceY", 42, 1, 42, 2, Q("0.01883 mm")),
    Sketcher.Constraint("DistanceY", 81, 2, 81, 1, Q("0.463542 mm")),
    Sketcher.Constraint("Distance", 17, Q("1.03478 mm")),
    Sketcher.Constraint("Distance", 20, Q("0.821879 mm")),
    Sketcher.Constraint("Distance", 24, Q("0.754462 mm")),
    Sketcher.Constraint("Distance", 25, Q("0.782378 mm")),
    Sketcher.Constraint("Distance", 28, Q("0.759039 mm")),
    Sketcher.Constraint("Distance", 48, Q("0.805021 mm")),
    Sketcher.Constraint("Distance", 51, Q("1.008781 mm")),
    Sketcher.Constraint("Distance", 53, Q("0.918079 mm")),
    Sketcher.Constraint("Distance", 54, Q("0.918529 mm")),
    Sketcher.Constraint("Distance", 82, Q("0.989349 mm")),
    Sketcher.Constraint("Distance", 83, Q("0.08849 mm")),
    Sketcher.Constraint("DistanceX", 9, 1, 9, 2, Q("0.410256 mm")),
    Sketcher.Constraint("DistanceX", 35, 2, 35, 1, Q("0.785256 mm")),
    Sketcher.Constraint("DistanceY", 0, 1, 0, 2, Q("0.089744 mm")),
    Sketcher.Constraint("DistanceY", 23, 1, 23, 2, Q("0.091747 mm")),
    Sketcher.Constraint("DistanceY", 37, 2, 37, 1, Q("0.020433 mm")),
    Sketcher.Constraint("DistanceY", 44, 2, 44, 1, Q("0.090345 mm")),
    Sketcher.Constraint("DistanceY", 47, 2, 47, 1, Q("0.020232 mm")),
    Sketcher.Constraint("DistanceY", 50, 2, 50, 1, Q("0.090144 mm")),
    Sketcher.Constraint("DistanceY", 62, 1, 62, 2, Q("0.423077 mm")),
    Sketcher.Constraint("DistanceY", 79, 1, 79, 2, Q("0.615385 mm")),
    Sketcher.Constraint("DistanceY", 6, 2, -1, 1, Q("9.019231 mm")),
    Sketcher.Constraint("DistanceY", 12, 2, -1, 1, Q("9.275641 mm")),
    Sketcher.Constraint("DistanceY", 16, 2, -1, 1, Q("9.519231 mm")),
    Sketcher.Constraint("DistanceY", 23, 2, -1, 1, Q("10.594151 mm")),
    Sketcher.Constraint("DistanceY", 25, 2, -1, 1, Q("10.111779 mm")),
    Sketcher.Constraint("DistanceY", 31, 2, -1, 1, Q("11.00641 mm")),
    Sketcher.Constraint("DistanceY", 33, 2, -1, 1, Q("11.224359 mm")),
    Sketcher.Constraint("DistanceY", 37, 2, -1, 1, Q("11.99359 mm")),
    Sketcher.Constraint("DistanceY", 45, 2, -1, 1, Q("12.769231 mm")),
    Sketcher.Constraint("DistanceY", 46, 2, -1, 1, Q("13.131611 mm")),
    Sketcher.Constraint("DistanceX", 48, 2, -1, 1, Q("0.719551 mm")),
    Sketcher.Constraint("DistanceY", 75, 2, -1, 1, Q("15.788462 mm")),
    Sketcher.Constraint("DistanceX", -1, 1, 83, 2, Q("0.025641 mm")),
    Sketcher.Constraint("DistanceY", 84, 2, -1, 1, Q("16.724359 mm")),
    Sketcher.Constraint("Distance", 19, Q("0.823206 mm")),
    Sketcher.Constraint("Distance", 22, Q("1.035713 mm")),
    Sketcher.Constraint("Distance", 27, Q("0.789022 mm")),
    Sketcher.Constraint("Distance", 43, Q("1.008676 mm")),
    Sketcher.Constraint("Distance", 45, Q("0.727457 mm")),
    Sketcher.Constraint("Distance", 46, Q("0.807082 mm")),
    Sketcher.Constraint("Distance", 84, Q("1.152492 mm")),
])
pocket1 = body.newObject("PartDesign::Pocket", "Pocket")
pocket1.Profile = sketch3
pocket1.Length = 0.1
pocket1.Reversed = True

doc.recompute()
